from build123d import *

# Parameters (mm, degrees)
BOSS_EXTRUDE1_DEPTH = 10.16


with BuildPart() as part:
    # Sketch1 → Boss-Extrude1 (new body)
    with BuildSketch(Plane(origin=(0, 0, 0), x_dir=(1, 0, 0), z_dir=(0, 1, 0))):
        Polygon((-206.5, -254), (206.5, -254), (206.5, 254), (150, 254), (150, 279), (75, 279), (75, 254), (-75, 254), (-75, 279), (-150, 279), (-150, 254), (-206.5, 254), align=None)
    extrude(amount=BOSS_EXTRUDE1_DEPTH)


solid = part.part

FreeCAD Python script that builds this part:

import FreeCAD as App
import Part
import Sketcher

V = App.Vector


def add_polygon(sketch, points):
    """Adds a closed chain of lines whose ends are joined by coincident constraints."""
    first, n = sketch.GeometryCount, len(points)
    for a, b in zip(points, points[1:] + points[:1]):
        sketch.addGeometry(Part.LineSegment(App.Vector(*a, 0), App.Vector(*b, 0)), False)
    for i in range(n):
        sketch.addConstraint(Sketcher.Constraint("Coincident", first + i, 2, first + (i + 1) % n, 1))

doc = App.newDocument("Part")
body = doc.addObject("PartDesign::Body", "Body")

sketch1 = body.newObject("Sketcher::SketchObject", "Sketch")
sketch1.AttachmentSupport = (doc.getObject("XZ_Plane"), [""])
sketch1.MapMode = "FlatFace"
add_polygon(sketch1, [(-206.5, 254), (206.5, 254), (206.5, -254), (150, -254), (150, -279), (75, -279), (75, -254), (-75, -254), (-75, -279), (-150, -279), (-150, -254), (-206.5, -254)])
sketch1.addConstraint(Sketcher.Constraint("Horizontal", 0))
sketch1.addConstraint(Sketcher.Constraint("Vertical", 1))
sketch1.addConstraint(Sketcher.Constraint("Horizontal", 2))
sketch1.addConstraint(Sketcher.Constraint("Vertical", 3))
sketch1.addConstraint(Sketcher.Constraint("Horizontal", 4))
sketch1.addConstraint(Sketcher.Constraint("Vertical", 5))
sketch1.addConstraint(Sketcher.Constraint("Horizontal", 6))
sketch1.addConstraint(Sketcher.Constraint("Vertical", 7))
sketch1.addConstraint(Sketcher.Constraint("Horizontal", 8))
sketch1.addConstraint(Sketcher.Constraint("Vertical", 9))
sketch1.addConstraint(Sketcher.Constraint("Horizontal", 10))
sketch1.addConstraint(Sketcher.Constraint("Vertical", 11))
sketch1.addConstraint(Sketcher.Constraint("Symmetric", 0, 2, 10, 2, -1, 1))
sketch1.addConstraint(Sketcher.Constraint("Symmetric", 4, 2, 7, 2, -2))
sketch1.addConstraint(Sketcher.Constraint("Symmetric", 2, 2, 9, 2, -2))
sketch1.addConstraint(Sketcher.Constraint("Horizontal", 2, 2, 5, 2))
sketch1.addConstraint(Sketcher.Constraint("DistanceX", 0, 1, 0, 2, 413.0))
sketch1.addConstraint(Sketcher.Constraint("DistanceX", 4, 2, 4, 1, 75.0))
sketch1.addConstraint(Sketcher.Constraint("DistanceX", 6, 2, 6, 1, 150.0))
sketch1.addConstraint(Sketcher.Constraint("DistanceY", 1, 2, 1, 1, 508.0))
sketch1.addConstraint(Sketcher.Constraint("DistanceY", 3, 2, 3, 1, 25.0))
pad1 = body.newObject("PartDesign::Pad", "Pad")
pad1.Profile = sketch1
pad1.Length = 10.16
pad1.Reversed = True

doc.recompute()
